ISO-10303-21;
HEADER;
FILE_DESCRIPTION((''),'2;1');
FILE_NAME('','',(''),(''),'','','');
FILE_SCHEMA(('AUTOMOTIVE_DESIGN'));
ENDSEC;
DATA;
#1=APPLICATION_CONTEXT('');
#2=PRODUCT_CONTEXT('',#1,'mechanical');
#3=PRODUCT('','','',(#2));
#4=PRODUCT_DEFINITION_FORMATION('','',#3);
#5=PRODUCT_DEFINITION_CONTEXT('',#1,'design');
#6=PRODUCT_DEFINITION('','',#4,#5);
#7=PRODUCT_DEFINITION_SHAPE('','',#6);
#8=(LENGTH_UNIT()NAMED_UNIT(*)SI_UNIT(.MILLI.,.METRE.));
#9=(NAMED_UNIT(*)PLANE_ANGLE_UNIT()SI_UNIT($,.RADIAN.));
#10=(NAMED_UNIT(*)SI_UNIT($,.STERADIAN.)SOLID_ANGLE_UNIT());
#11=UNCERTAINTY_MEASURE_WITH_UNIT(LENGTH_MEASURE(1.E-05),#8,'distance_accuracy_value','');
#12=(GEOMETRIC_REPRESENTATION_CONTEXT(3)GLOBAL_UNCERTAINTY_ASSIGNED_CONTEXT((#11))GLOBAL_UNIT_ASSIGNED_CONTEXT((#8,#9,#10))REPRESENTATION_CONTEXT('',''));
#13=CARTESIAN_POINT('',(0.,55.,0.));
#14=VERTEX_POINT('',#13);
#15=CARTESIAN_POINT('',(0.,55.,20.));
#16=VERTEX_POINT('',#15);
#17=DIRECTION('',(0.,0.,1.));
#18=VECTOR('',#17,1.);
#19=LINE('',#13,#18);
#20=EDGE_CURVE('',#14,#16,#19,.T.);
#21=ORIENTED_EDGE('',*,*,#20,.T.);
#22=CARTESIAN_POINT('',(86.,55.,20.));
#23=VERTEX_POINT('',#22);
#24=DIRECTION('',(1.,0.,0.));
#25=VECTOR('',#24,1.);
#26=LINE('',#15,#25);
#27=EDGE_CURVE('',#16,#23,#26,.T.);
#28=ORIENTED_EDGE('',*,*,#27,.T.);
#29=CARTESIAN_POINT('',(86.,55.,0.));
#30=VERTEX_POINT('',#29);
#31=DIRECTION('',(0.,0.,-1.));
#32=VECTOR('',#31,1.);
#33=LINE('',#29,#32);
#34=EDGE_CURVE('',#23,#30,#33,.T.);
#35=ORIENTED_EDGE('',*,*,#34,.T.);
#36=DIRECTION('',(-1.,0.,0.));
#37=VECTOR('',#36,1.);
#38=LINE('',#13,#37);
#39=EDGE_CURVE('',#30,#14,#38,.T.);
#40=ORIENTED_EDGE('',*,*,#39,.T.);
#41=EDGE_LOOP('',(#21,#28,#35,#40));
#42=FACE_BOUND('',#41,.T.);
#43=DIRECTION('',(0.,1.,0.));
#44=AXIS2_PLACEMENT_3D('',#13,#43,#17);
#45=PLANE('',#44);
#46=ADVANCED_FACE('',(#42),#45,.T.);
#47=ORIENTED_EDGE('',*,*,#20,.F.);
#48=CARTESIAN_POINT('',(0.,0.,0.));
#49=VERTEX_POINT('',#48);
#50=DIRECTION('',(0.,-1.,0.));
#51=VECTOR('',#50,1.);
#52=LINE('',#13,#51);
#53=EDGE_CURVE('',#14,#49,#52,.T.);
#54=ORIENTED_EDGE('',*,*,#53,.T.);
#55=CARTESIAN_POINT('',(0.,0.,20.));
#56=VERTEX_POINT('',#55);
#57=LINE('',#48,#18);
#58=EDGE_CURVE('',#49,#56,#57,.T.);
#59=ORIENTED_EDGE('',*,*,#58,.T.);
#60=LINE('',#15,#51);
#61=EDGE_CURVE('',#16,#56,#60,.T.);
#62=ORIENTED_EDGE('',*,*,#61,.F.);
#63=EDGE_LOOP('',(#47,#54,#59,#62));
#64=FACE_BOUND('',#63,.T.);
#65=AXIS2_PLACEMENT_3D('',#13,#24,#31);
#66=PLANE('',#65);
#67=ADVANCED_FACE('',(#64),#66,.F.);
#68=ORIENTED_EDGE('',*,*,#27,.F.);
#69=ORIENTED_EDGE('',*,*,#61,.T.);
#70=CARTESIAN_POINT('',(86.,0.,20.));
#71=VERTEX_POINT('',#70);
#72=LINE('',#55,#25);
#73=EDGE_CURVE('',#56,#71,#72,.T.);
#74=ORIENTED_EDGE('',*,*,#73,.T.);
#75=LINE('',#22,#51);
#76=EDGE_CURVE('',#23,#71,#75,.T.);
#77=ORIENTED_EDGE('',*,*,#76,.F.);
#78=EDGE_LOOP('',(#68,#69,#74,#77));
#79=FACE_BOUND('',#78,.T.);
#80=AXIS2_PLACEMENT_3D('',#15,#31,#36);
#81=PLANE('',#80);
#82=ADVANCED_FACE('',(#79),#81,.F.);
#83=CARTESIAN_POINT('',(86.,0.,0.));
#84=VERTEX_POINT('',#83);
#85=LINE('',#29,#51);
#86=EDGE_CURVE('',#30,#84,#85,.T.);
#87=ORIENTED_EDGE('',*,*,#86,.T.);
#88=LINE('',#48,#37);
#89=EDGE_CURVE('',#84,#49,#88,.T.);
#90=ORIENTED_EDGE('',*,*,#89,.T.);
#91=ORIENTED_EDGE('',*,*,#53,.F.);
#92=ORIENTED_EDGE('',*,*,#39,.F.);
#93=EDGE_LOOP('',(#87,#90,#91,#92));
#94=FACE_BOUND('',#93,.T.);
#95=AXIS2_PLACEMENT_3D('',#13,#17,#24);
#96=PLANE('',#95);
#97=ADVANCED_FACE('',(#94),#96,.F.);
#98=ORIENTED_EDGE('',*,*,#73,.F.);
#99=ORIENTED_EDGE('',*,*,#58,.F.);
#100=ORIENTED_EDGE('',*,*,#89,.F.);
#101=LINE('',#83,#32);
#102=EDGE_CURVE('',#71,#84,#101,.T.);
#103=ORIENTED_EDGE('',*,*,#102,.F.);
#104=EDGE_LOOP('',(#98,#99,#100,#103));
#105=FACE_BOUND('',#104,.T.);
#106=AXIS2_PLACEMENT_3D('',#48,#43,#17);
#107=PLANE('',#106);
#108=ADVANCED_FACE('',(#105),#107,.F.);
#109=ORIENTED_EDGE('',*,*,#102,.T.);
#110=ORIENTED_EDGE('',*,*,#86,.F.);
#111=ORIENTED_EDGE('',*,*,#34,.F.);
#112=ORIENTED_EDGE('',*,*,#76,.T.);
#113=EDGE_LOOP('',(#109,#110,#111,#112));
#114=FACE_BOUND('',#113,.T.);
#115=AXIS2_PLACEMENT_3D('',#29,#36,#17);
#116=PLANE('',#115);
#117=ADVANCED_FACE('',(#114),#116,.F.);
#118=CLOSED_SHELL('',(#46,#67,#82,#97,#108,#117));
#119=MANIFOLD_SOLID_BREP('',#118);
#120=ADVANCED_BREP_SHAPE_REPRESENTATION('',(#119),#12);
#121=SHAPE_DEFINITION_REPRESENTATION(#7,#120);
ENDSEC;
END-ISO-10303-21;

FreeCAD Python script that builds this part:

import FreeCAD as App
import Part
import Sketcher

V = App.Vector
Q = App.Units.Quantity


def add_polygon(sketch, points):
    """Adds a closed chain of lines whose ends are joined by coincident constraints."""
    first, n = sketch.GeometryCount, len(points)
    for a, b in zip(points, points[1:] + points[:1]):
        sketch.addGeometry(Part.LineSegment(App.Vector(*a, 0), App.Vector(*b, 0)), False)
    for i in range(n):
        sketch.addConstraint(Sketcher.Constraint("Coincident", first + i, 2, first + (i + 1) % n, 1))

doc = App.newDocument("Part")
body = doc.addObject("PartDesign::Body", "Body")

# Sketch on XZ plane
sketch1 = body.newObject("Sketcher::SketchObject", "Sketch")
sketch1.AttachmentSupport = (doc.getObject("XZ_Plane"), [""])
sketch1.MapMode = "FlatFace"
add_polygon(sketch1, [(0, 0), (0, 20), (86, 20), (86, 0)])  # lines 0-3
sketch1.addConstraint(Sketcher.Constraint("Vertical", 0))
sketch1.addConstraint(Sketcher.Constraint("Horizontal", 1))
sketch1.addConstraint(Sketcher.Constraint("Vertical", 2))
sketch1.addConstraint(Sketcher.Constraint("Horizontal", 3))
sketch1.addConstraint(Sketcher.Constraint("Coincident", 3, 2, -1, 1))
sketch1.addConstraint(Sketcher.Constraint("DistanceX", 1, 1, 1, 2, Q("86 mm")))
sketch1.addConstraint(Sketcher.Constraint("DistanceY", 0, 1, 0, 2, Q("20 mm")))
pad1 = body.newObject("PartDesign::Pad", "Pad")
pad1.Profile = sketch1
pad1.Length = 55
pad1.Reversed = True

doc.recompute()
